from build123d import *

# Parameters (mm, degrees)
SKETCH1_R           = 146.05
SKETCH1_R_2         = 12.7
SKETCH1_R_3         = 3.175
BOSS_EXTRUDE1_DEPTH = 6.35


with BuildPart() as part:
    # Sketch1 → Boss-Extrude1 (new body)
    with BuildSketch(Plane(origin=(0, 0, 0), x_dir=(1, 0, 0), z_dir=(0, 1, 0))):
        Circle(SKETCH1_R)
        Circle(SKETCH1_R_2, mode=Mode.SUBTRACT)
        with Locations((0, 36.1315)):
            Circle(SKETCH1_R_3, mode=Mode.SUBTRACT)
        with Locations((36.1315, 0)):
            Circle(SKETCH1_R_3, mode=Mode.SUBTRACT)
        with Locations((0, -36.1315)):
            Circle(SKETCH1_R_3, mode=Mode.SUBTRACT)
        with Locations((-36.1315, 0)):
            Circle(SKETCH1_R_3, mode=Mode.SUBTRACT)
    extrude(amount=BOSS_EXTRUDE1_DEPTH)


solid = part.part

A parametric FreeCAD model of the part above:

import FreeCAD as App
import Part
import Sketcher
Q = App.Units.Quantity

doc = App.newDocument("Part")
body = doc.addObject("PartDesign::Body", "Body")

sketch1 = doc.addObject("Sketcher::SketchObject", "Sketch")
body.addObject(sketch1)
sketch1.AttachmentSupport = (doc.XZ_Plane, [""])
sketch1.MapMode = "FlatFace"
sketch1.addGeometry(Part.Circle(App.Vector(0, 0, 0), App.Vector(0, 0, 1), 146.05), False)
sketch1.addGeometry(Part.Circle(App.Vector(0, 36.1315, 0), App.Vector(0, 0, 1), 3.175), False)
sketch1.addGeometry(Part.Circle(App.Vector(-36.1315, 0, 0), App.Vector(0, 0, 1), 3.175), False)
sketch1.addGeometry(Part.Circle(App.Vector(0, 0, 0), App.Vector(0, 0, 1), 12.7), False)
sketch1.addGeometry(Part.Circle(App.Vector(36.1315, 0, 0), App.Vector(0, 0, 1), 3.175), False)
sketch1.addGeometry(Part.Circle(App.Vector(0, -36.1315, 0), App.Vector(0, 0, 1), 3.175), False)
sketch1.addConstraint(Sketcher.Constraint("Coincident", 0, 3, -1, 1))
sketch1.addConstraint(Sketcher.Constraint("Coincident", 3, 3, -1, 1))
sketch1.addConstraint(Sketcher.Constraint("Equal", 1, 2))
sketch1.addConstraint(Sketcher.Constraint("Equal", 2, 4))
sketch1.addConstraint(Sketcher.Constraint("Equal", 4, 5))
sketch1.addConstraint(Sketcher.Constraint("Symmetric", 2, 3, 4, 3, -1, 1))
sketch1.addConstraint(Sketcher.Constraint("Symmetric", 1, 3, 5, 3, -1, 1))
sketch1.addConstraint(Sketcher.Constraint("PointOnObject", 1, 3, -2))
sketch1.addConstraint(Sketcher.Constraint("PointOnObject", 2, 3, -1))
sketch1.addConstraint(Sketcher.Constraint("Diameter", 3, Q("1 in")))
sketch1.addConstraint(Sketcher.Constraint("Diameter", 0, Q("11.5 in")))
sketch1.addConstraint(Sketcher.Constraint("Diameter", 1, Q("0.25 in")))
sketch1.addConstraint(Sketcher.Constraint("DistanceX", 2, 3, 4, 3, Q("2.845 in")))
sketch1.addConstraint(Sketcher.Constraint("DistanceY", 5, 3, 1, 3, Q("2.845 in")))
pad1 = doc.addObject("PartDesign::Pad", "Pad")
body.addObject(pad1)
pad1.Profile = sketch1
pad1.Length = Q("0.25 in")
pad1.Reversed = True

doc.recompute()
